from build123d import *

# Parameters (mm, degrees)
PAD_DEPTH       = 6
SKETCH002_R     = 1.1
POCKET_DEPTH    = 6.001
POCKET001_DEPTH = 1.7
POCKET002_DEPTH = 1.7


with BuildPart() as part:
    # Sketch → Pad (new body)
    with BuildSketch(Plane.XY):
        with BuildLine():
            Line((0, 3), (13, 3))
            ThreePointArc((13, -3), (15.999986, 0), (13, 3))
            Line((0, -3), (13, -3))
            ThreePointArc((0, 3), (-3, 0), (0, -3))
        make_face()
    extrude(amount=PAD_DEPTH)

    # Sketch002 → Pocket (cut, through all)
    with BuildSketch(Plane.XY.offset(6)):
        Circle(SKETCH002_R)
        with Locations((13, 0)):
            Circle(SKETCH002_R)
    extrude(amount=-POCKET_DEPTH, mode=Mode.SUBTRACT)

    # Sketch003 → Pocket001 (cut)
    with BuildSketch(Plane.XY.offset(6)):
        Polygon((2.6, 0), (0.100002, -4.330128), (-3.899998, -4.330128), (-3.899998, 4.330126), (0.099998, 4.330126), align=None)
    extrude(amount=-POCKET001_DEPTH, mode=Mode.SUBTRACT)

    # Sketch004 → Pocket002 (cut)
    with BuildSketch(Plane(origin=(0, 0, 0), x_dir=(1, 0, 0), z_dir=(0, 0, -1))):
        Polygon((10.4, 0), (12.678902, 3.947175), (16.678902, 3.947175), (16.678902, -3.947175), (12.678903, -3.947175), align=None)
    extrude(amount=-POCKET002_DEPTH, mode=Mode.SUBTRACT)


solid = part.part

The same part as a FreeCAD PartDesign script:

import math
import FreeCAD as App
import Part
import Sketcher
Q = App.Units.Quantity


def add_polygon(sketch, points):
    """Adds a closed chain of lines whose ends are joined by coincident constraints."""
    first, n = sketch.GeometryCount, len(points)
    for a, b in zip(points, points[1:] + points[:1]):
        sketch.addGeometry(Part.LineSegment(App.Vector(*a, 0), App.Vector(*b, 0)), False)
    for i in range(n):
        sketch.addConstraint(Sketcher.Constraint("Coincident", first + i, 2, first + (i + 1) % n, 1))

doc = App.newDocument("Part")
body = doc.addObject("PartDesign::Body", "Body")

# Sketch on XY plane
sketch1 = body.newObject("Sketcher::SketchObject", "Sketch")
sketch1.AttachmentSupport = (doc.getObject("XY_Plane"), [""])
sketch1.MapMode = "FlatFace"
sketch1.addGeometry(Part.LineSegment(App.Vector(13, 3, 0), App.Vector(0, 3, 0)), False)
sketch1.addGeometry(Part.ArcOfCircle(Part.Circle(App.Vector(0, 0, 0), App.Vector(0, 0, 1), 3), math.radians(90), math.radians(270)), False)
sketch1.addGeometry(Part.LineSegment(App.Vector(0, -3, 0), App.Vector(13, -3, 0)), False)
sketch1.addGeometry(Part.ArcOfCircle(Part.Circle(App.Vector(13, 0, 0), App.Vector(0, 0, 1), 3), math.radians(-90), math.radians(90)), False)
sketch1.addConstraint(Sketcher.Constraint("Tangent", 0, 2, 1, 1))
sketch1.addConstraint(Sketcher.Constraint("Tangent", 1, 2, 2, 1))
sketch1.addConstraint(Sketcher.Constraint("Coincident", 2, 2, 3, 1))
sketch1.addConstraint(Sketcher.Constraint("Coincident", 3, 2, 0, 1))
sketch1.addConstraint(Sketcher.Constraint("Horizontal", 0))
sketch1.addConstraint(Sketcher.Constraint("Horizontal", 2))
sketch1.addConstraint(Sketcher.Constraint("Coincident", 1, 3, -1, 1))
sketch1.addConstraint(Sketcher.Constraint("Vertical", 2, 2, 3, 2))
sketch1.addConstraint(Sketcher.Constraint("Radius", 1, Q("3 mm")))
sketch1.addConstraint(Sketcher.Constraint("DistanceX", 0, 2, 0, 1, Q("13 mm")))
sketch1.addConstraint(Sketcher.Constraint("DistanceX", -1, 1, 3, 3, Q("12.999986 mm")))
pad1 = body.newObject("PartDesign::Pad", "Pad")
pad1.Profile = sketch1
pad1.Length = 6

# Sketch on XY plane
sketch2 = body.newObject("Sketcher::SketchObject", "Sketch001")
sketch2.AttachmentSupport = (doc.getObject("XY_Plane"), [""])
sketch2.MapMode = "FlatFace"
sketch2.AttachmentOffset = App.Placement(App.Vector(0, 0, 6), App.Rotation())
sketch2.addGeometry(Part.Circle(App.Vector(0, 0, 0), App.Vector(0, 0, 1), 1.1), False)
sketch2.addGeometry(Part.Circle(App.Vector(13, 0, 0), App.Vector(0, 0, 1), 1.1), False)
sketch2.addConstraint(Sketcher.Constraint("Coincident", 0, 3, -1, 1))
sketch2.addConstraint(Sketcher.Constraint("Equal", 0, 1))
sketch2.addConstraint(Sketcher.Constraint("PointOnObject", 1, 3, -1))
sketch2.addConstraint(Sketcher.Constraint("Diameter", 0, Q("2.2 mm")))
sketch2.addConstraint(Sketcher.Constraint("DistanceX", -1, 1, 1, 3, Q("13 mm")))
pocket1 = body.newObject("PartDesign::Pocket", "Pocket")
pocket1.Profile = sketch2
pocket1.Type = "ThroughAll"

# Sketch on XY plane
sketch3 = body.newObject("Sketcher::SketchObject", "Sketch002")
sketch3.AttachmentSupport = (doc.getObject("XY_Plane"), [""])
sketch3.MapMode = "FlatFace"
sketch3.AttachmentOffset = App.Placement(App.Vector(0, 0, 6), App.Rotation())
add_polygon(sketch3, [(0.1, -4.3), (2.6, 0), (0.1, 4.3), (-3.9, 4.3), (-3.9, -4.3)])  # lines 0-4
sketch3.addConstraint(Sketcher.Constraint("Horizontal", 2))
sketch3.addConstraint(Sketcher.Constraint("Vertical", 3))
sketch3.addConstraint(Sketcher.Constraint("Horizontal", 4))
sketch3.addConstraint(Sketcher.Constraint("Symmetric", 1, 2, 4, 2, -1))
sketch3.addConstraint(Sketcher.Constraint("PointOnObject", 0, 2, -1))
sketch3.addConstraint(Sketcher.Constraint("DistanceX", 4, 1, 4, 2, Q("4 mm")))
sketch3.addConstraint(Sketcher.Constraint("Distance", 0, Q("5 mm")))
sketch3.addConstraint(Sketcher.Constraint("DistanceX", -1, 1, 0, 2, Q("2.6 mm")))
sketch3.addConstraint(Sketcher.Constraint("DistanceX", 2, 2, -1, 1, Q("3.899998 mm")))
pocket2 = body.newObject("PartDesign::Pocket", "Pocket001")
pocket2.Profile = sketch3
pocket2.Length = 1.7

# Sketch on XY plane
sketch4 = body.newObject("Sketcher::SketchObject", "Sketch003")
sketch4.AttachmentSupport = (doc.getObject("XY_Plane"), [""])
sketch4.MapMode = "FlatFace"
add_polygon(sketch4, [(12.7, -3.9), (10.4, 0), (12.7, 3.9), (16.7, 3.9), (16.7, -3.9)])  # lines 0-4
sketch4.addConstraint(Sketcher.Constraint("Horizontal", 2))
sketch4.addConstraint(Sketcher.Constraint("Vertical", 3))
sketch4.addConstraint(Sketcher.Constraint("Horizontal", 4))
sketch4.addConstraint(Sketcher.Constraint("Symmetric", 1, 2, 4, 2, -1))
sketch4.addConstraint(Sketcher.Constraint("PointOnObject", 0, 2, -1))
sketch4.addConstraint(Sketcher.Constraint("DistanceX", 2, 1, 2, 2, Q("3.999999 mm")))
sketch4.addConstraint(Sketcher.Constraint("Angle", 0, Q("119.999994 deg")))
sketch4.addConstraint(Sketcher.Constraint("DistanceX", -1, 1, 0, 2, Q("10.4 mm")))
sketch4.addConstraint(Sketcher.Constraint("DistanceY", 3, 2, 3, 1, Q("7.89435 mm")))
pocket3 = body.newObject("PartDesign::Pocket", "Pocket002")
pocket3.Profile = sketch4
pocket3.Length = 1.7
pocket3.Reversed = True

doc.recompute()
